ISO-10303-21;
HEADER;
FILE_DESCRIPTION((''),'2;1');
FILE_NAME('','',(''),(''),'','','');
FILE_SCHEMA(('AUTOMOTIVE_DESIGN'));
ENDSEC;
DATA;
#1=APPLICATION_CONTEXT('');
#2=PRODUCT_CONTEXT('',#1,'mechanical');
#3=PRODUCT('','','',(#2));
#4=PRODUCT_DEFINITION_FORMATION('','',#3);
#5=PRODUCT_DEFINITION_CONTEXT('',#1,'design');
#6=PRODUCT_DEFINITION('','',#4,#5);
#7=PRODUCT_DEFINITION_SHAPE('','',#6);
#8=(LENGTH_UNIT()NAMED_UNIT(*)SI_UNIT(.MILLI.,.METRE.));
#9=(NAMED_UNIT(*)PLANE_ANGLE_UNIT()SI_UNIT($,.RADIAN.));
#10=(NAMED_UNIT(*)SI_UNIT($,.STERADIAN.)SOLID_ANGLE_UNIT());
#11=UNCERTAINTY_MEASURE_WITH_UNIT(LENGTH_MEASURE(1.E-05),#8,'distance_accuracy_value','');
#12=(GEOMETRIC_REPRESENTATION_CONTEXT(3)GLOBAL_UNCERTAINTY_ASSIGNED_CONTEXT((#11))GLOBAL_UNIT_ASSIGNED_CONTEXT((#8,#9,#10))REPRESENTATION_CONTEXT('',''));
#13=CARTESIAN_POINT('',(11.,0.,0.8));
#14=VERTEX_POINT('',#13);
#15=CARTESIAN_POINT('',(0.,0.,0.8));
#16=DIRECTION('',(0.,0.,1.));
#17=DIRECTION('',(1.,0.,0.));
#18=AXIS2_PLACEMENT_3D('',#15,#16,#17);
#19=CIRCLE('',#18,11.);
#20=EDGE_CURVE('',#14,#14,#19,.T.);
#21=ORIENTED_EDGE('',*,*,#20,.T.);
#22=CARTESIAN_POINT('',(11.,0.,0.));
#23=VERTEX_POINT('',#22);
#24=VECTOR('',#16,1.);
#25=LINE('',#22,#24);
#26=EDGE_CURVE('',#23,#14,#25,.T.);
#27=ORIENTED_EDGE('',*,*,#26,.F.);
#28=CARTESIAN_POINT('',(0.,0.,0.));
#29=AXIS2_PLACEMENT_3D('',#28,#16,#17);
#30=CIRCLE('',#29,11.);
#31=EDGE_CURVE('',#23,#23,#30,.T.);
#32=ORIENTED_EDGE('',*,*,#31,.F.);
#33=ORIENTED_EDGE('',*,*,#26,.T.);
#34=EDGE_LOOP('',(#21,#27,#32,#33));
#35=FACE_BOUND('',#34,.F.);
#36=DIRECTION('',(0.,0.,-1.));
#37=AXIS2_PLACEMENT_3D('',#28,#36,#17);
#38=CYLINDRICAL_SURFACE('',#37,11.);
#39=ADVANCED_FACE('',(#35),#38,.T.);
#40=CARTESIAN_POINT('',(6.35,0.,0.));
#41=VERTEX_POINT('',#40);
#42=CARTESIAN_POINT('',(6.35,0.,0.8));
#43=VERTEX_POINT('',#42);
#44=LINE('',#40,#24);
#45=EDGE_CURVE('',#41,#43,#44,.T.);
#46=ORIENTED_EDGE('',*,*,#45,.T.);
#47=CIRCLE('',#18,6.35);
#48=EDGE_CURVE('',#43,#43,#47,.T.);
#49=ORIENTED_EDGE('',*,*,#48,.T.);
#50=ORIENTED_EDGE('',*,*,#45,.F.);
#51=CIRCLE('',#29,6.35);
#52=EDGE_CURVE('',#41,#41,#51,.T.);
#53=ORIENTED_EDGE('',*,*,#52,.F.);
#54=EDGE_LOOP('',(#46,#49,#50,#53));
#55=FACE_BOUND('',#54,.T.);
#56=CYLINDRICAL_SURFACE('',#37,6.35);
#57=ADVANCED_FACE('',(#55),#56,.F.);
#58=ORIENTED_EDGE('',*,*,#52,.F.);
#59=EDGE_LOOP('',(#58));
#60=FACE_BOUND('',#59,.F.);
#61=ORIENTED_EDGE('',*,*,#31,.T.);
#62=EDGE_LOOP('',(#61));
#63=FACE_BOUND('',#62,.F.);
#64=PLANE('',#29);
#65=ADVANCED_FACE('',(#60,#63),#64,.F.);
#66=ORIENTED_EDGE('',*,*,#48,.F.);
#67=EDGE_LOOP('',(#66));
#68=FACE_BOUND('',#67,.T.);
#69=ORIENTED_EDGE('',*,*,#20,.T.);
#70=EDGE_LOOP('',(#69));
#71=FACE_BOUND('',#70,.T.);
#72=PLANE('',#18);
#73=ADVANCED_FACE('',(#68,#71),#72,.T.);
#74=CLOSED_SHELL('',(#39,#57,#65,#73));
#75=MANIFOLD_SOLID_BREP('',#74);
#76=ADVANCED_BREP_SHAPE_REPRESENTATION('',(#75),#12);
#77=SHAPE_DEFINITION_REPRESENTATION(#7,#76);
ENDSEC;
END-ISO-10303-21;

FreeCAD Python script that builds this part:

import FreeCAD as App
import Part
import Sketcher

V = App.Vector

doc = App.newDocument("Part")
params = doc.addObject("Spreadsheet::Sheet", "Params")
for row, (alias, value) in enumerate([
    ("sketch1_diameter", "22 mm"),
    ("sketch1_diameter2", "12.7 mm"),
    ("pad1_length", "0.8 mm"),
], start=1):
    params.set(f"A{row}", alias)
    params.set(f"B{row}", "=" + value)
    params.setAlias(f"B{row}", alias)

body = doc.addObject("PartDesign::Body", "Body")

# Sketch on XY plane
sketch1 = body.newObject("Sketcher::SketchObject", "Sketch")
sketch1.AttachmentSupport = (doc.getObject("XY_Plane"), [""])
sketch1.MapMode = "FlatFace"
sketch1.addGeometry([
    Part.Circle(V(0, 0, 0), V(0, 0, 1), 11),
    Part.Circle(V(0, 0, 0), V(0, 0, 1), 6),
], False)
sketch1.addConstraint([
    Sketcher.Constraint("Coincident", 0, 3, -1, 1),
    Sketcher.Constraint("Coincident", 1, 3, -1, 1),
    Sketcher.Constraint("Diameter", 0, 22.0),
    Sketcher.Constraint("Diameter", 1, 12.7),
])
sketch1.setExpression("Constraints[2]", "Params.sketch1_diameter")
sketch1.setExpression("Constraints[3]", "Params.sketch1_diameter2")
pad1 = body.newObject("PartDesign::Pad", "Pad")
pad1.Profile = sketch1
pad1.setExpression("Length", "Params.pad1_length")

doc.recompute()
